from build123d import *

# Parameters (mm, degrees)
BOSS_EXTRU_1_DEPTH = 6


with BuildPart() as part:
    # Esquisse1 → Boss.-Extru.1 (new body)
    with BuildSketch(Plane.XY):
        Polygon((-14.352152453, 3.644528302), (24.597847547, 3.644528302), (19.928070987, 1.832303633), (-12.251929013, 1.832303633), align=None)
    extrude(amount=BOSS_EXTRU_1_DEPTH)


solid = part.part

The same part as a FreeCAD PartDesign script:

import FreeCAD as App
import Part
import Sketcher
from FreeCAD import Vector
Q = App.Units.Quantity

doc = App.newDocument("Part")
params = doc.addObject("Spreadsheet::Sheet", "Params")
for row, (alias, value) in enumerate([
    ("sketch1_width", "38.95 mm"),
    ("sketch1_width2", "32.18 mm"),
    ("pad1_length", "6 mm"),
], start=1):
    params.set(f"A{row}", alias)
    params.set(f"B{row}", "=" + value)
    params.setAlias(f"B{row}", alias)

body = doc.addObject("PartDesign::Body", "Body")

sketch1 = doc.addObject("Sketcher::SketchObject", "Sketch")
body.addObject(sketch1)
sketch1.AttachmentSupport = (doc.XY_Plane, [""])
sketch1.MapMode = "FlatFace"
sketch1.addGeometry([
    Part.LineSegment(Vector(24.6, 3.6, 0), Vector(-14.4, 3.6, 0)),
    Part.LineSegment(Vector(-14.4, 3.6, 0), Vector(-12.3, 1.8, 0)),
    Part.LineSegment(Vector(-12.3, 1.8, 0), Vector(19.9, 1.8, 0)),
    Part.LineSegment(Vector(19.9, 1.8, 0), Vector(24.6, 3.6, 0)),
], False)
sketch1.addConstraint([
    Sketcher.Constraint("Coincident", 0, 2, 1, 1),
    Sketcher.Constraint("Coincident", 1, 2, 2, 1),
    Sketcher.Constraint("Coincident", 2, 2, 3, 1),
    Sketcher.Constraint("Coincident", 3, 2, 0, 1),
    Sketcher.Constraint("Horizontal", 0),
    Sketcher.Constraint("Horizontal", 2),
    Sketcher.Constraint("DistanceX", 0, 2, 0, 1, Q("38.95 mm")),
    Sketcher.Constraint("DistanceX", 2, 1, 2, 2, Q("32.18 mm")),
    Sketcher.Constraint("Angle", 1, Q("-40.79 deg")),
    Sketcher.Constraint("Angle", 3, Q("21.21 deg")),
    Sketcher.Constraint("DistanceY", -1, 1, 0, 2, Q("3.644528 mm")),
    Sketcher.Constraint("DistanceX", 1, 2, -1, 1, Q("12.251929 mm")),
])
sketch1.setExpression("Constraints[6]", "Params.sketch1_width")
sketch1.setExpression("Constraints[7]", "Params.sketch1_width2")
pad1 = doc.addObject("PartDesign::Pad", "Pad")
body.addObject(pad1)
pad1.Profile = sketch1
pad1.setExpression("Length", "Params.pad1_length")

doc.recompute()
